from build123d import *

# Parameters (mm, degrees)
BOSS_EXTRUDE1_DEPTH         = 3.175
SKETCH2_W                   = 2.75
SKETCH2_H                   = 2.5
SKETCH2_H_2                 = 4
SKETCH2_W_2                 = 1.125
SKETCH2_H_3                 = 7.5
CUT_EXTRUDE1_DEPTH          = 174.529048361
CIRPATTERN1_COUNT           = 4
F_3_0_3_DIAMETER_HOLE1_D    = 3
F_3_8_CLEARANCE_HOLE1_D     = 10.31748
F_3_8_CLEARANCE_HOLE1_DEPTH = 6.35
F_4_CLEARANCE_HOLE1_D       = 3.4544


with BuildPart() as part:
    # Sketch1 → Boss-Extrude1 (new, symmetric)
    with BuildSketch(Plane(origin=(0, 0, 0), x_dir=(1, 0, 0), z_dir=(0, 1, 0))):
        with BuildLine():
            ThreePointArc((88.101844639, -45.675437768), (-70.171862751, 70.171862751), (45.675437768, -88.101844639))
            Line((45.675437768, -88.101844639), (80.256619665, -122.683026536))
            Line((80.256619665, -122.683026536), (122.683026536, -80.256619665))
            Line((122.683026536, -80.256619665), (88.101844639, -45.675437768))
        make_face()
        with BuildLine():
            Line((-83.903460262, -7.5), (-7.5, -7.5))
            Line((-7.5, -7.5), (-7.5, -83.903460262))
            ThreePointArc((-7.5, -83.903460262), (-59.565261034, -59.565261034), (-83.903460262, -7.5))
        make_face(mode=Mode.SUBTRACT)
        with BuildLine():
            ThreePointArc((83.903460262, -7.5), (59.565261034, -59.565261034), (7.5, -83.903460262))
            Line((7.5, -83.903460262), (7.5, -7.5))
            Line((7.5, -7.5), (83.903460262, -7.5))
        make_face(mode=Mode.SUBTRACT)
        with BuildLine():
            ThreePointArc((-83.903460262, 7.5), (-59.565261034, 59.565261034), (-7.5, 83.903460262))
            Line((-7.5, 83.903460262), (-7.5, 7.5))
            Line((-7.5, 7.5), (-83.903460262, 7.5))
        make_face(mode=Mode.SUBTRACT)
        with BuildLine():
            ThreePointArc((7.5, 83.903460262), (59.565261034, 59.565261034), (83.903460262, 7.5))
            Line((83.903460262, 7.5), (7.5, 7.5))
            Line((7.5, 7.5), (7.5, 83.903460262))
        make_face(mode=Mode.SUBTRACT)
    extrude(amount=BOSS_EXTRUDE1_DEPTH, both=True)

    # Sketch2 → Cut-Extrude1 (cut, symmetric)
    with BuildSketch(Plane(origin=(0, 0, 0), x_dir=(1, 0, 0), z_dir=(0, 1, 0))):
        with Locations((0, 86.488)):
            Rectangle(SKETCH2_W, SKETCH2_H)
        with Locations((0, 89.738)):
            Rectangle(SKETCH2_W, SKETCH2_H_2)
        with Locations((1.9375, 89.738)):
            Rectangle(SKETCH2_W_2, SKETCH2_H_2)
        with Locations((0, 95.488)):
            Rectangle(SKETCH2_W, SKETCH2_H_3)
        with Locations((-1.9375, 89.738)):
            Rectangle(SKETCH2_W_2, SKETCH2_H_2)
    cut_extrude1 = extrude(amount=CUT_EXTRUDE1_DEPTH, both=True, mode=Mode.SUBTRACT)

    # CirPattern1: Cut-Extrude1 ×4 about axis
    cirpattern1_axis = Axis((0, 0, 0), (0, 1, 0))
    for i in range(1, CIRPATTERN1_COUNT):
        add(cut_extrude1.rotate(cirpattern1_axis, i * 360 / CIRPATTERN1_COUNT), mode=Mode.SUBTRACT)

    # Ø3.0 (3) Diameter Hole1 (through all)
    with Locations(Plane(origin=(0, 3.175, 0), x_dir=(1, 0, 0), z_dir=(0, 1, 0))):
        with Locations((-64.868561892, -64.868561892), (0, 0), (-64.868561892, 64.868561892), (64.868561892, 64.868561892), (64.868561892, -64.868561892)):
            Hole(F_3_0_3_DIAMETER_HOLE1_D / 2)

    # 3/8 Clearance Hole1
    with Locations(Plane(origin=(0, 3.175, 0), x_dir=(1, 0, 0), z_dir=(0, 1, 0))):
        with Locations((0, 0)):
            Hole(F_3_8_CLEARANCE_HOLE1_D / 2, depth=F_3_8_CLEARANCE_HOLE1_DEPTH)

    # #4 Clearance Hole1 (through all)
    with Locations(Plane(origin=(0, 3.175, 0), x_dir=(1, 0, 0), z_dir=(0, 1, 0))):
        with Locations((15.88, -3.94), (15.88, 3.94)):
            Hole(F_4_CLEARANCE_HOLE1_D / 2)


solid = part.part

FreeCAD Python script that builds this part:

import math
import FreeCAD as App
import Part
import Sketcher

V = App.Vector
Q = App.Units.Quantity


def add_polygon(sketch, points):
    """Adds a closed chain of lines whose ends are joined by coincident constraints."""
    first, n = sketch.GeometryCount, len(points)
    for a, b in zip(points, points[1:] + points[:1]):
        sketch.addGeometry(Part.LineSegment(App.Vector(*a, 0), App.Vector(*b, 0)), False)
    for i in range(n):
        sketch.addConstraint(Sketcher.Constraint("Coincident", first + i, 2, first + (i + 1) % n, 1))

doc = App.newDocument("Part")
body = doc.addObject("PartDesign::Body", "Body")

# Sketch on XZ plane
sketch1 = body.newObject("Sketcher::SketchObject", "Sketch")
sketch1.AttachmentSupport = (doc.getObject("XZ_Plane"), [""])
sketch1.MapMode = "FlatFace"
sketch1.addGeometry([
    Part.ArcOfCircle(Part.Circle(V(0, 0, 0), V(0, 0, 1), 99.238), math.radians(62.596013), math.radians(387.403987)),  # 0
    Part.LineSegment(V(45.675438, 88.101845, 0), V(80.25662, 122.683027, 0)),  # 1
    Part.LineSegment(V(80.25662, 122.683027, 0), V(122.683027, 80.25662, 0)),  # 2
    Part.LineSegment(V(122.683027, 80.25662, 0), V(88.101845, 45.675438, 0)),  # 3
    Part.ArcOfCircle(Part.Circle(V(0, 0, 0), V(0, 0, 1), 84.238), math.radians(95.108005), math.radians(174.891995)),  # 4
    Part.LineSegment(V(-83.90346, 7.5, 0), V(-7.5, 7.5, 0)),  # 5
    Part.LineSegment(V(-7.5, 7.5, 0), V(-7.5, 83.90346, 0)),  # 6
    Part.LineSegment(V(7.5, 7.5, 0), V(83.90346, 7.5, 0)),  # 7
    Part.ArcOfCircle(Part.Circle(V(0, 0, 0), V(0, 0, 1), 84.238), math.radians(5.108005), math.radians(84.891995)),  # 8
    Part.LineSegment(V(7.5, 83.90346, 0), V(7.5, 7.5, 0)),  # 9
    Part.LineSegment(V(-7.5, -7.5, 0), V(-83.90346, -7.5, 0)),  # 10
    Part.ArcOfCircle(Part.Circle(V(0, 0, 0), V(0, 0, 1), 84.238), math.radians(-174.891995), math.radians(-95.108005)),  # 11
    Part.LineSegment(V(-7.5, -83.90346, 0), V(-7.5, -7.5, 0)),  # 12
    Part.LineSegment(V(7.5, -7.5, 0), V(7.5, -83.90346, 0)),  # 13
    Part.ArcOfCircle(Part.Circle(V(0, 0, 0), V(0, 0, 1), 84.238), math.radians(-84.891995), math.radians(-5.108005)),  # 14
    Part.LineSegment(V(83.90346, -7.5, 0), V(7.5, -7.5, 0)),  # 15
], False)
sketch1.addConstraint([
    Sketcher.Constraint("Coincident", 0, 1, 1, 1),
    Sketcher.Constraint("Coincident", 1, 2, 2, 1),
    Sketcher.Constraint("Coincident", 2, 2, 3, 1),
    Sketcher.Constraint("Coincident", 3, 2, 0, 2),
    Sketcher.Constraint("Coincident", 4, 2, 5, 1),
    Sketcher.Constraint("Coincident", 5, 2, 6, 1),
    Sketcher.Constraint("Coincident", 6, 2, 4, 1),
    Sketcher.Constraint("Coincident", 7, 2, 8, 1),
    Sketcher.Constraint("Coincident", 8, 2, 9, 1),
    Sketcher.Constraint("Coincident", 9, 2, 7, 1),
    Sketcher.Constraint("Coincident", 10, 2, 11, 1),
    Sketcher.Constraint("Coincident", 11, 2, 12, 1),
    Sketcher.Constraint("Coincident", 12, 2, 10, 1),
    Sketcher.Constraint("Coincident", 13, 2, 14, 1),
    Sketcher.Constraint("Coincident", 14, 2, 15, 1),
    Sketcher.Constraint("Coincident", 15, 2, 13, 1),
    Sketcher.Constraint("Horizontal", 5),
    Sketcher.Constraint("Vertical", 6),
    Sketcher.Constraint("Horizontal", 7),
    Sketcher.Constraint("Vertical", 9),
    Sketcher.Constraint("Horizontal", 10),
    Sketcher.Constraint("Vertical", 12),
    Sketcher.Constraint("Vertical", 13),
    Sketcher.Constraint("Horizontal", 15),
    Sketcher.Constraint("Coincident", 0, 3, -1, 1),
    Sketcher.Constraint("Coincident", 4, 3, -1, 1),
    Sketcher.Constraint("Coincident", 8, 3, -1, 1),
    Sketcher.Constraint("Coincident", 11, 3, -1, 1),
    Sketcher.Constraint("Coincident", 14, 3, -1, 1),
    Sketcher.Constraint("Equal", 4, 8),
    Sketcher.Constraint("Equal", 8, 11),
    Sketcher.Constraint("Equal", 11, 14),
    Sketcher.Constraint("Symmetric", 9, 2, 12, 2, -1, 1),
    Sketcher.Constraint("Symmetric", 5, 2, 15, 2, -1, 1),
    Sketcher.Constraint("Symmetric", 5, 2, 9, 2, -2),
    Sketcher.Constraint("Perpendicular", 1, 2),
    Sketcher.Constraint("Perpendicular", 2, 3),
    Sketcher.Constraint("Equal", 15, 6),
    Sketcher.Constraint("Equal", 1, 3),
    Sketcher.Constraint("Angle", 1, Q("45 deg")),
    Sketcher.Constraint("Distance", 2, Q("60 mm")),
    Sketcher.Constraint("Radius", 0, Q("99.238 mm")),
    Sketcher.Constraint("Radius", 4, Q("84.238 mm")),
    Sketcher.Constraint("DistanceX", 6, 2, 8, 2, Q("15 mm")),
    Sketcher.Constraint("DistanceX", -1, 1, 1, 2, Q("80.25662 mm")),
])
pad1 = body.newObject("PartDesign::Pad", "Pad")
pad1.Profile = sketch1
pad1.Length = 6.35
pad1.Midplane = True

# Sketch on XZ plane
sketch2 = body.newObject("Sketcher::SketchObject", "Sketch001")
sketch2.AttachmentSupport = (doc.getObject("XZ_Plane"), [""])
sketch2.MapMode = "FlatFace"
add_polygon(sketch2, [(-1.375, -85.238), (1.375, -85.238), (1.375, -87.738), (2.5, -87.738), (2.5, -91.738), (1.375, -91.738), (1.375, -99.238), (-1.375, -99.238), (-1.375, -91.738), (-2.5, -91.738), (-2.5, -87.738), (-1.375, -87.738)])  # lines 0-11
sketch2.addConstraint([
    Sketcher.Constraint("Horizontal", 0),
    Sketcher.Constraint("Vertical", 1),
    Sketcher.Constraint("Horizontal", 2),
    Sketcher.Constraint("Vertical", 3),
    Sketcher.Constraint("Horizontal", 4),
    Sketcher.Constraint("Vertical", 5),
    Sketcher.Constraint("Horizontal", 6),
    Sketcher.Constraint("Vertical", 7),
    Sketcher.Constraint("Horizontal", 8),
    Sketcher.Constraint("Vertical", 9),
    Sketcher.Constraint("Horizontal", 10),
    Sketcher.Constraint("Vertical", 11),
    Sketcher.Constraint("Symmetric", 4, 2, 7, 2, -2),
    Sketcher.Constraint("Symmetric", 2, 2, 9, 2, -2),
    Sketcher.Constraint("Vertical", 1, 2, 4, 2),
    Sketcher.Constraint("Vertical", 7, 2, 10, 2),
    Sketcher.Constraint("DistanceY", 3, 2, 3, 1, Q("4 mm")),
    Sketcher.Constraint("DistanceY", 1, 2, 1, 1, Q("2.5 mm")),
    Sketcher.Constraint("DistanceY", 5, 2, 5, 1, Q("7.5 mm")),
    Sketcher.Constraint("DistanceX", 8, 2, 3, 2, Q("5 mm")),
    Sketcher.Constraint("DistanceX", 0, 1, 0, 2, Q("2.75 mm")),
    Sketcher.Constraint("DistanceY", 0, 2, -1, 1, Q("85.238 mm")),
])
pocket1 = body.newObject("PartDesign::Pocket", "Pocket")
pocket1.Profile = sketch2
pocket1.Length = 349.058097
pocket1.Midplane = True
doc.recompute()

polarpattern = body.newObject("PartDesign::PolarPattern", "PolarPattern")
polarpattern.Originals = [pocket1]
polarpattern.Axis = (doc.getObject("Y_Axis"), [""])
polarpattern.Angle = 360
polarpattern.Occurrences = 4
body.Tip = polarpattern

# Sketch on XZ plane
sketch3 = body.newObject("Sketcher::SketchObject", "Sketch002")
sketch3.AttachmentSupport = (doc.getObject("XZ_Plane"), [""])
sketch3.MapMode = "FlatFace"
sketch3.AttachmentOffset = App.Placement(V(0, 0, -3.175), App.Rotation())
sketch3.addGeometry([
    Part.Circle(V(-64.868562, 64.868562, 0), V(0, 0, 1), 1.5),  # 0
    Part.Circle(V(0, 0, 0), V(0, 0, 1), 1.5),  # 1
    Part.Circle(V(-64.868562, -64.868562, 0), V(0, 0, 1), 1.5),  # 2
    Part.Circle(V(64.868562, -64.868562, 0), V(0, 0, 1), 1.5),  # 3
    Part.Circle(V(64.868562, 64.868562, 0), V(0, 0, 1), 1.5),  # 4
], False)
sketch3.addConstraint([
    Sketcher.Constraint("Coincident", 1, 3, -1, 1),
    Sketcher.Constraint("Equal", 0, 1),
    Sketcher.Constraint("Equal", 1, 2),
    Sketcher.Constraint("Equal", 2, 3),
    Sketcher.Constraint("Equal", 3, 4),
    Sketcher.Constraint("Symmetric", 0, 3, 3, 3, -1, 1),
    Sketcher.Constraint("Symmetric", 2, 3, 4, 3, -1, 1),
    Sketcher.Constraint("Symmetric", 2, 3, 3, 3, -2),
    Sketcher.Constraint("Diameter", 0, Q("3 mm")),
    Sketcher.Constraint("DistanceX", 0, 3, -1, 1, Q("64.868562 mm")),
    Sketcher.Constraint("DistanceY", -1, 1, 0, 3, Q("64.868562 mm")),
])
doc.recompute()
hole = body.newObject("PartDesign::Hole", "Hole")
hole.Profile = sketch3
hole.ThreadType = "None"
hole.Diameter = 3
hole.DepthType = "ThroughAll"
hole.Reversed = True

# Sketch on XZ plane
sketch4 = body.newObject("Sketcher::SketchObject", "Sketch003")
sketch4.AttachmentSupport = (doc.getObject("XZ_Plane"), [""])
sketch4.MapMode = "FlatFace"
sketch4.AttachmentOffset = App.Placement(V(0, 0, -3.175), App.Rotation())
sketch4.addGeometry(Part.Circle(V(0, 0, 0), V(0, 0, 1), 5.15874), False)
sketch4.addConstraint([
    Sketcher.Constraint("Coincident", 0, 3, -1, 1),
    Sketcher.Constraint("Diameter", 0, Q("10.31748 mm")),
])
doc.recompute()
hole2 = body.newObject("PartDesign::Hole", "Hole001")
hole2.Profile = sketch4
hole2.ThreadType = "None"
hole2.Diameter = 10.31748
hole2.DepthType = "Dimension"
hole2.Depth = 6.35
hole2.DrillPoint = "Flat"
hole2.Reversed = True

# Sketch on XZ plane
sketch5 = body.newObject("Sketcher::SketchObject", "Sketch004")
sketch5.AttachmentSupport = (doc.getObject("XZ_Plane"), [""])
sketch5.MapMode = "FlatFace"
sketch5.AttachmentOffset = App.Placement(V(0, 0, -3.175), App.Rotation())
sketch5.addGeometry([
    Part.Circle(V(15.88, 3.94, 0), V(0, 0, 1), 1.7272),
    Part.Circle(V(15.88, -3.94, 0), V(0, 0, 1), 1.7272),
], False)
sketch5.addConstraint([
    Sketcher.Constraint("Equal", 0, 1),
    Sketcher.Constraint("Symmetric", 0, 3, 1, 3, -1),
    Sketcher.Constraint("Diameter", 0, Q("3.4544 mm")),
    Sketcher.Constraint("DistanceX", -1, 1, 0, 3, Q("15.88 mm")),
    Sketcher.Constraint("DistanceY", -1, 1, 0, 3, Q("3.94 mm")),
])
doc.recompute()
hole3 = body.newObject("PartDesign::Hole", "Hole002")
hole3.Profile = sketch5
hole3.ThreadType = "None"
hole3.Diameter = 3.4544
hole3.DepthType = "ThroughAll"
hole3.Reversed = True

doc.recompute()
